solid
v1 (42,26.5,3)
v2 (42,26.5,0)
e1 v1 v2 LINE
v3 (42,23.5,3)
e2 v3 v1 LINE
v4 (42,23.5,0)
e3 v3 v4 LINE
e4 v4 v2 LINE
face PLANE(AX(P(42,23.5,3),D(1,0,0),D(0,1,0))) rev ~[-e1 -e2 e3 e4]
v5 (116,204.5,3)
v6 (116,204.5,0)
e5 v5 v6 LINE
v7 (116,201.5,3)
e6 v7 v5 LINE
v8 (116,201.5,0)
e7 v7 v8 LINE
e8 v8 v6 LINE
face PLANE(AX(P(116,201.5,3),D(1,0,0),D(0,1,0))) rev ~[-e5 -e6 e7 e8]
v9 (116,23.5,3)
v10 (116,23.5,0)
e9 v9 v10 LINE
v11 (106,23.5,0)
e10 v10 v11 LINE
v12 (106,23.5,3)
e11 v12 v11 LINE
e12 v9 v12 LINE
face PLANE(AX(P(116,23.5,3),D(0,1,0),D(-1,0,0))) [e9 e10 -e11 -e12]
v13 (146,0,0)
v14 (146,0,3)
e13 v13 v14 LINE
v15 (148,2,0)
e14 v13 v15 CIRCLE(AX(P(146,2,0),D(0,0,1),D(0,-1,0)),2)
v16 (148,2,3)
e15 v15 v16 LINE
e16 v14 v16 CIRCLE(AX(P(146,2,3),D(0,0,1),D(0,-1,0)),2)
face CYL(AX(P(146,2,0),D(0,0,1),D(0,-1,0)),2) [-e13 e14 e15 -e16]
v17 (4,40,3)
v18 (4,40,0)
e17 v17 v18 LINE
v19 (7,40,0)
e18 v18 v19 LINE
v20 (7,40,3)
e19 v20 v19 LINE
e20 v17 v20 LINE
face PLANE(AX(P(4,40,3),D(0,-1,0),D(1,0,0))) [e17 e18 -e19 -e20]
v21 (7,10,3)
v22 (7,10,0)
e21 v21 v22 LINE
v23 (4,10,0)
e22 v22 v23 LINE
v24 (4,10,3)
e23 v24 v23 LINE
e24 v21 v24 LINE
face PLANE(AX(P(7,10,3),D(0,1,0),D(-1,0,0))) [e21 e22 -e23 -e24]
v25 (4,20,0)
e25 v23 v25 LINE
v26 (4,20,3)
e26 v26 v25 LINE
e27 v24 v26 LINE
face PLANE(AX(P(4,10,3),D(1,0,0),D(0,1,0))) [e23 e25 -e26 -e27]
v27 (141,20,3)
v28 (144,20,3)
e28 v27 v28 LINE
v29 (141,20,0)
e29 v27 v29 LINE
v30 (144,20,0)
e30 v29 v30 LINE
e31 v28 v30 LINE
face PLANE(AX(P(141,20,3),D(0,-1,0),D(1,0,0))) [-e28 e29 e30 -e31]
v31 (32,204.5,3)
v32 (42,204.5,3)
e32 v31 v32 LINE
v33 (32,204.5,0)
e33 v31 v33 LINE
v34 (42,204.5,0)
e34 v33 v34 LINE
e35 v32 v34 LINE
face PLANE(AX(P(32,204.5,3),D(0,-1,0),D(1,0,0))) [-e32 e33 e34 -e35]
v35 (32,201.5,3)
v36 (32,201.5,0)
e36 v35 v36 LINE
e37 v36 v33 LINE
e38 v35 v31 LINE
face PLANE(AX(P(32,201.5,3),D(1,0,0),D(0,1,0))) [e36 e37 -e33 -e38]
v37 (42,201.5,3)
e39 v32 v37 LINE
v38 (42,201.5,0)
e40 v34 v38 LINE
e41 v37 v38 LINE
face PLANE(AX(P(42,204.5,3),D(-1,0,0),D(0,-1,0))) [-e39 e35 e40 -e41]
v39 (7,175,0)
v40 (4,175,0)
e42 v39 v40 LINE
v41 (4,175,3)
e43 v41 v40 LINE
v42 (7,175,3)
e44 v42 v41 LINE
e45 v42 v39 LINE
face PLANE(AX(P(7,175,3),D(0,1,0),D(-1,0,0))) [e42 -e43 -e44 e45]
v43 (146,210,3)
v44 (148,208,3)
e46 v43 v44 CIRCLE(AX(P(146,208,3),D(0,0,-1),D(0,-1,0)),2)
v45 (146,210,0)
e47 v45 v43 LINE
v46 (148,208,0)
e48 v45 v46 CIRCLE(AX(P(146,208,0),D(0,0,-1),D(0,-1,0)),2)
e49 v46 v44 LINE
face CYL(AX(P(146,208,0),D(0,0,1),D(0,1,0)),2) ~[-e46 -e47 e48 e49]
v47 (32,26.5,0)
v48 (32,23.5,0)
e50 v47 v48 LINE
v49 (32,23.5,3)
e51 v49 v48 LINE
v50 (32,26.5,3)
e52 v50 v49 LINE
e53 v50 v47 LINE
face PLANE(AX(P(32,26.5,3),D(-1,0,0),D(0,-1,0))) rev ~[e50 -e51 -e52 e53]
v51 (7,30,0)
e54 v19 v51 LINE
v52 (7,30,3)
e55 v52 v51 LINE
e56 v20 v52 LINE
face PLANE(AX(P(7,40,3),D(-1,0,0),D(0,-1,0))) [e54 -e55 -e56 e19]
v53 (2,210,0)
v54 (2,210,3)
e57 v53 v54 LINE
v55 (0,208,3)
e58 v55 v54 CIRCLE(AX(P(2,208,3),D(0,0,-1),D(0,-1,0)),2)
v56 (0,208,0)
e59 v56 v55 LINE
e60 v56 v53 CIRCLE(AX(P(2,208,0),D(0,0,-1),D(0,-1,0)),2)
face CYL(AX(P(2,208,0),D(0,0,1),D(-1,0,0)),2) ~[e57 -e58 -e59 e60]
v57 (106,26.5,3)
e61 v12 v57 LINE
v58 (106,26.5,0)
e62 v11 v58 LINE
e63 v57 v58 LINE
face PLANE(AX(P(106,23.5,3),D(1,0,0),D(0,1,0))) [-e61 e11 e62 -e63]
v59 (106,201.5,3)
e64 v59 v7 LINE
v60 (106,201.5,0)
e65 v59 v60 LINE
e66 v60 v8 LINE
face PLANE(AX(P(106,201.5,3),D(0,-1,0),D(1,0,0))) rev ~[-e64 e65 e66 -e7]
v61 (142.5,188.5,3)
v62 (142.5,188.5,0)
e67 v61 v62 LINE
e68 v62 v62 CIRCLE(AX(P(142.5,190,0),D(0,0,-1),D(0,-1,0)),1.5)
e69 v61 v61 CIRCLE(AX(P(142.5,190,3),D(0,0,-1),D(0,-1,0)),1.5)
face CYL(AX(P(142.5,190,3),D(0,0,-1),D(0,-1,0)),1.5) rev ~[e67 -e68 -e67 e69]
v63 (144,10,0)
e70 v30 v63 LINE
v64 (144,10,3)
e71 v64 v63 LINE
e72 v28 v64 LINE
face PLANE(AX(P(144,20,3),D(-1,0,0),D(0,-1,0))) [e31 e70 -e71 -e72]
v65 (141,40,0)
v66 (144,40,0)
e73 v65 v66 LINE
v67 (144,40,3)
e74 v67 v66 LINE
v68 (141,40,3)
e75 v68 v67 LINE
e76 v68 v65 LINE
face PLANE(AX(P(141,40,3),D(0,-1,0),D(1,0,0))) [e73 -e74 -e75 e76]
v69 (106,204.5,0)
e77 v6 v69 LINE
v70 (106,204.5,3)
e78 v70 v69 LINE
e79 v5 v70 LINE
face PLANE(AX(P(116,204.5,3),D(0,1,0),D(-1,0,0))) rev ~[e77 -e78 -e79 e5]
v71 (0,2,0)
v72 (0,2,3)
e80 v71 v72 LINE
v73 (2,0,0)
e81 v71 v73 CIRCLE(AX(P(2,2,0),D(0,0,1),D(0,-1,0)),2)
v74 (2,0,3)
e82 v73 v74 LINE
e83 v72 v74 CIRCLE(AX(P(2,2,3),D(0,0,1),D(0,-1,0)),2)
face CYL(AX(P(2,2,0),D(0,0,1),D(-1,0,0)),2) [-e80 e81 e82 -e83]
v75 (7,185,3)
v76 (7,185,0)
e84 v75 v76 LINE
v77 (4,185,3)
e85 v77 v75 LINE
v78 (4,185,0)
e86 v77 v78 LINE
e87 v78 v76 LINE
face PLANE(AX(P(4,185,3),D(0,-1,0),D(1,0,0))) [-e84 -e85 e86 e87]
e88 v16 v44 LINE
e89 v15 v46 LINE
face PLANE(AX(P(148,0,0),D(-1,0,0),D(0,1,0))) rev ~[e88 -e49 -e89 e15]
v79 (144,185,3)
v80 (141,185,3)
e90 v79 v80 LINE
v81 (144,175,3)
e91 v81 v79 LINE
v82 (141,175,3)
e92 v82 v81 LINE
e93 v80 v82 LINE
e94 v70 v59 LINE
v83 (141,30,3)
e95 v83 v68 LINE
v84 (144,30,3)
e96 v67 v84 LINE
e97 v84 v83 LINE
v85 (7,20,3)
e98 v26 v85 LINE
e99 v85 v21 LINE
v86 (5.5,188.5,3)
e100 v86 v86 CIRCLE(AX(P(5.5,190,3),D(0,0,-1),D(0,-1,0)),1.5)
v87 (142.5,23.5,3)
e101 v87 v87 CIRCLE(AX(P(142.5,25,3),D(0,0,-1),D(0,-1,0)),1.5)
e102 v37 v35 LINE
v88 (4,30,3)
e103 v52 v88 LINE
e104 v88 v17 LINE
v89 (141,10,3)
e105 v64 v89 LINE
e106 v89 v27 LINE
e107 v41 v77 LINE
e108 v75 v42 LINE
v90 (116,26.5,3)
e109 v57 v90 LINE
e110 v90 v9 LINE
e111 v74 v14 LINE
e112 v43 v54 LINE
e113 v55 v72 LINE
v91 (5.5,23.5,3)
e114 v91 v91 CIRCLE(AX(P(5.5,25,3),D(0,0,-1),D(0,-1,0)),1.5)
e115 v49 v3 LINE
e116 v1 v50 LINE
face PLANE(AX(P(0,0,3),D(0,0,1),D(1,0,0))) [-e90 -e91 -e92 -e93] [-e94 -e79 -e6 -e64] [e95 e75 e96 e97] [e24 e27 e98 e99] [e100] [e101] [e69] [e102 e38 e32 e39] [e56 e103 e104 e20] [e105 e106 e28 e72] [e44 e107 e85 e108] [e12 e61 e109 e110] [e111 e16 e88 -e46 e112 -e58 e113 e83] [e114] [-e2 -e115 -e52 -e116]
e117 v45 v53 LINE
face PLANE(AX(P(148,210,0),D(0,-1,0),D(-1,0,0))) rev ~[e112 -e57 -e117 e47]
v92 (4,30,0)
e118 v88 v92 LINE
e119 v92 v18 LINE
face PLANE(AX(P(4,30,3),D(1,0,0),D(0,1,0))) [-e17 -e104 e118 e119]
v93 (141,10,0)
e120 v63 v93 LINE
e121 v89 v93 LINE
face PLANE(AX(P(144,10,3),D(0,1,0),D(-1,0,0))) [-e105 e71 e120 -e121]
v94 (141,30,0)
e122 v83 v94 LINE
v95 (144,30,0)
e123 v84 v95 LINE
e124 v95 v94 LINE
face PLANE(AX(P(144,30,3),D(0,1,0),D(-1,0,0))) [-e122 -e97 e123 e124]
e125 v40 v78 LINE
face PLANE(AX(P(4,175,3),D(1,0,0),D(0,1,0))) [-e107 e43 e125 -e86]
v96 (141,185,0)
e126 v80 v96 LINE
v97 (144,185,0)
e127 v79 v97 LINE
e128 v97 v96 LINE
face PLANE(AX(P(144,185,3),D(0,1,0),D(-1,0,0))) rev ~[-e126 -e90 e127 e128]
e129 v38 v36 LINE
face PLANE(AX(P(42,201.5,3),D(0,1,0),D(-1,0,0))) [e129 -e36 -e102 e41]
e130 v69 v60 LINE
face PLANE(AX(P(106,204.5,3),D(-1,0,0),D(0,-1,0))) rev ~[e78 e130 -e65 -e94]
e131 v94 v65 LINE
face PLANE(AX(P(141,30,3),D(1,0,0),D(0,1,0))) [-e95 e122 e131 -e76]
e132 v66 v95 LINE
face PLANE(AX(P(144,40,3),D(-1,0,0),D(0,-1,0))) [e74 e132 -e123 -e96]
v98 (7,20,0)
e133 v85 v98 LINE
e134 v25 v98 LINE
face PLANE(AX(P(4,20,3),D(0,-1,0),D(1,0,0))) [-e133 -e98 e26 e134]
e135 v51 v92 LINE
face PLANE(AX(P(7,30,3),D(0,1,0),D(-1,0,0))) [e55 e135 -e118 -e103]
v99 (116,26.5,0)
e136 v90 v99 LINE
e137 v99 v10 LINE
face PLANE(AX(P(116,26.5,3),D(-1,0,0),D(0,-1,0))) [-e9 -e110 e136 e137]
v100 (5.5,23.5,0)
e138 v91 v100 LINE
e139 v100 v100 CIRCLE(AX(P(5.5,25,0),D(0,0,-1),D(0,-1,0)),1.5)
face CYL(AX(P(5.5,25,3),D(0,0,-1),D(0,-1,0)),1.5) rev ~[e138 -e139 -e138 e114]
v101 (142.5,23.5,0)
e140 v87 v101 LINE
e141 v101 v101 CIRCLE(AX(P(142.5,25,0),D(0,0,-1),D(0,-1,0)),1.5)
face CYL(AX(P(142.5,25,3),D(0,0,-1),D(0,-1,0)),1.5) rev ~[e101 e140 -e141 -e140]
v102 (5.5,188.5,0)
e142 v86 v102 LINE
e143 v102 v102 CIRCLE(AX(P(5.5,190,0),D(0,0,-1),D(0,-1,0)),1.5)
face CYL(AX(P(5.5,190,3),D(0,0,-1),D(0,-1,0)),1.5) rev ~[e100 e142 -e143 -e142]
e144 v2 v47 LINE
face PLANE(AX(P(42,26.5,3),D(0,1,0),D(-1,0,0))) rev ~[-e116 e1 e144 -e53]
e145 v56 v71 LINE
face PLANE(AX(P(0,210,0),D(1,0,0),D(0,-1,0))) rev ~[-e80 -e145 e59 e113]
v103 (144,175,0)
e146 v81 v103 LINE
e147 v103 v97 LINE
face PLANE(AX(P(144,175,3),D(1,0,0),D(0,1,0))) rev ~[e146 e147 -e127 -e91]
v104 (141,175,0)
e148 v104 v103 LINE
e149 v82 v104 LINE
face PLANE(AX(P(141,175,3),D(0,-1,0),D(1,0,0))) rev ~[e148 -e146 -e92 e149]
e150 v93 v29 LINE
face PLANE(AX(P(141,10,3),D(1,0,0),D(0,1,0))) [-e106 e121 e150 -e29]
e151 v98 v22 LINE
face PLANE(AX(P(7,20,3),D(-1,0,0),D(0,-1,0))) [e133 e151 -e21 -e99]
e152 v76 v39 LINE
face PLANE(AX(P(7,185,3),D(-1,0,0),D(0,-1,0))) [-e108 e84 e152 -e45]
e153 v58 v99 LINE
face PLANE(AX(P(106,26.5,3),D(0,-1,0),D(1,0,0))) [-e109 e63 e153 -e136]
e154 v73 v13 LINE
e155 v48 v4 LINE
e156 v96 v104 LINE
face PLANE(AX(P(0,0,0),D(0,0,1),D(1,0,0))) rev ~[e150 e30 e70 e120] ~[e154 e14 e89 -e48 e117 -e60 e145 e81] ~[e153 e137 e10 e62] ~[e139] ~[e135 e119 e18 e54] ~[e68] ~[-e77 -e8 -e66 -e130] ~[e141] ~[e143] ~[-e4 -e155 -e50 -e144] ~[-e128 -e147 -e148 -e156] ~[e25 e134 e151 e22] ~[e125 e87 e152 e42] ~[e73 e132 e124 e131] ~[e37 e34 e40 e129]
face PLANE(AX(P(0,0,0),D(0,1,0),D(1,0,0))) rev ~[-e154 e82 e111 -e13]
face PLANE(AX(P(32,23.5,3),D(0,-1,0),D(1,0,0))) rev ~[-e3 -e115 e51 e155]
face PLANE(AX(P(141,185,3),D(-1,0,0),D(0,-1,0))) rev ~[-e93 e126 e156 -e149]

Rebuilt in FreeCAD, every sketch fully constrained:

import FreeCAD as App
import Part
import Sketcher


def edges_at(feature, points):
    """Names of the edges that pass closest to the given points."""
    edges = feature.Shape.Edges
    near = lambda p: min(range(len(edges)), key=lambda i: edges[i].distToShape(Part.Vertex(*p))[0])
    return sorted({f"Edge{near(p) + 1}" for p in points})

doc = App.newDocument("Part")
params = doc.addObject("Spreadsheet::Sheet", "Params")
for row, (alias, value) in enumerate([
    ("sketch1_width", "148 mm"),
    ("sketch1_height", "210 mm"),
    ("pad1_length", "3 mm"),
    ("sketch2_width", "3 mm"),
    ("sketch2_height", "10 mm"),
    ("sketch3_diameter", "3 mm"),
    ("hole_diameter", "3 mm"),
    ("sketch4_width", "10 mm"),
    ("sketch4_height", "3 mm"),
    ("fillet_radius", "2 mm"),
], start=1):
    params.set(f"A{row}", alias)
    params.set(f"B{row}", "=" + value)
    params.setAlias(f"B{row}", alias)

body = doc.addObject("PartDesign::Body", "Body")

# Sketch on XY plane
sketch1 = doc.addObject("Sketcher::SketchObject", "Sketch")
body.addObject(sketch1)
sketch1.AttachmentSupport = (doc.XY_Plane, [""])
sketch1.MapMode = "FlatFace"
sketch1.addGeometry([
    Part.LineSegment(App.Vector(0, 210, 0), App.Vector(0, 0, 0)),
    Part.LineSegment(App.Vector(0, 0, 0), App.Vector(148, 0, 0)),
    Part.LineSegment(App.Vector(148, 0, 0), App.Vector(148, 210, 0)),
    Part.LineSegment(App.Vector(148, 210, 0), App.Vector(0, 210, 0)),
], False)
sketch1.addConstraint([
    Sketcher.Constraint("Coincident", 0, 2, 1, 1),
    Sketcher.Constraint("Coincident", 1, 2, 2, 1),
    Sketcher.Constraint("Coincident", 2, 2, 3, 1),
    Sketcher.Constraint("Coincident", 3, 2, 0, 1),
    Sketcher.Constraint("Vertical", 0),
    Sketcher.Constraint("Horizontal", 1),
    Sketcher.Constraint("Vertical", 2),
    Sketcher.Constraint("Horizontal", 3),
    Sketcher.Constraint("Coincident", 0, 2, -1, 1),
    Sketcher.Constraint("DistanceX", 1, 1, 1, 2, 148.0),
    Sketcher.Constraint("DistanceY", 0, 2, 0, 1, 210.0),
])
sketch1.setExpression("Constraints[9]", "Params.sketch1_width")
sketch1.setExpression("Constraints[10]", "Params.sketch1_height")
pad1 = doc.addObject("PartDesign::Pad", "Pad")
body.addObject(pad1)
pad1.Profile = sketch1
pad1.setExpression("Length", "Params.pad1_length")

# Sketch on XY plane
sketch2 = doc.addObject("Sketcher::SketchObject", "Sketch001")
body.addObject(sketch2)
sketch2.AttachmentSupport = (doc.XY_Plane, [""])
sketch2.MapMode = "FlatFace"
sketch2.AttachmentOffset = App.Placement(App.Vector(0, 0, 3), App.Rotation())
sketch2.addGeometry([
    Part.LineSegment(App.Vector(7, 185, 0), App.Vector(4, 185, 0)),  # 0
    Part.LineSegment(App.Vector(4, 185, 0), App.Vector(4, 175, 0)),  # 1
    Part.LineSegment(App.Vector(4, 175, 0), App.Vector(7, 175, 0)),  # 2
    Part.LineSegment(App.Vector(7, 175, 0), App.Vector(7, 185, 0)),  # 3
    Part.LineSegment(App.Vector(7, 40, 0), App.Vector(4, 40, 0)),  # 4
    Part.LineSegment(App.Vector(4, 40, 0), App.Vector(4, 30, 0)),  # 5
    Part.LineSegment(App.Vector(4, 30, 0), App.Vector(7, 30, 0)),  # 6
    Part.LineSegment(App.Vector(7, 30, 0), App.Vector(7, 40, 0)),  # 7
    Part.LineSegment(App.Vector(7, 20, 0), App.Vector(4, 20, 0)),  # 8
    Part.LineSegment(App.Vector(4, 20, 0), App.Vector(4, 10, 0)),  # 9
    Part.LineSegment(App.Vector(4, 10, 0), App.Vector(7, 10, 0)),  # 10
    Part.LineSegment(App.Vector(7, 10, 0), App.Vector(7, 20, 0)),  # 11
    Part.LineSegment(App.Vector(141, 185, 0), App.Vector(141, 175, 0)),  # 12
    Part.LineSegment(App.Vector(141, 175, 0), App.Vector(144, 175, 0)),  # 13
    Part.LineSegment(App.Vector(144, 175, 0), App.Vector(144, 185, 0)),  # 14
    Part.LineSegment(App.Vector(144, 185, 0), App.Vector(141, 185, 0)),  # 15
    Part.LineSegment(App.Vector(144, 40, 0), App.Vector(141, 40, 0)),  # 16
    Part.LineSegment(App.Vector(141, 40, 0), App.Vector(141, 30, 0)),  # 17
    Part.LineSegment(App.Vector(141, 30, 0), App.Vector(144, 30, 0)),  # 18
    Part.LineSegment(App.Vector(144, 30, 0), App.Vector(144, 40, 0)),  # 19
    Part.LineSegment(App.Vector(144, 20, 0), App.Vector(141, 20, 0)),  # 20
    Part.LineSegment(App.Vector(141, 20, 0), App.Vector(141, 10, 0)),  # 21
    Part.LineSegment(App.Vector(141, 10, 0), App.Vector(144, 10, 0)),  # 22
    Part.LineSegment(App.Vector(144, 10, 0), App.Vector(144, 20, 0)),  # 23
], False)
sketch2.addConstraint([
    Sketcher.Constraint("Coincident", 0, 2, 1, 1),
    Sketcher.Constraint("Coincident", 1, 2, 2, 1),
    Sketcher.Constraint("Coincident", 2, 2, 3, 1),
    Sketcher.Constraint("Coincident", 3, 2, 0, 1),
    Sketcher.Constraint("Coincident", 4, 2, 5, 1),
    Sketcher.Constraint("Coincident", 5, 2, 6, 1),
    Sketcher.Constraint("Coincident", 6, 2, 7, 1),
    Sketcher.Constraint("Coincident", 7, 2, 4, 1),
    Sketcher.Constraint("Coincident", 8, 2, 9, 1),
    Sketcher.Constraint("Coincident", 9, 2, 10, 1),
    Sketcher.Constraint("Coincident", 10, 2, 11, 1),
    Sketcher.Constraint("Coincident", 11, 2, 8, 1),
    Sketcher.Constraint("Coincident", 12, 2, 13, 1),
    Sketcher.Constraint("Coincident", 13, 2, 14, 1),
    Sketcher.Constraint("Coincident", 14, 2, 15, 1),
    Sketcher.Constraint("Coincident", 15, 2, 12, 1),
    Sketcher.Constraint("Coincident", 16, 2, 17, 1),
    Sketcher.Constraint("Coincident", 17, 2, 18, 1),
    Sketcher.Constraint("Coincident", 18, 2, 19, 1),
    Sketcher.Constraint("Coincident", 19, 2, 16, 1),
    Sketcher.Constraint("Coincident", 20, 2, 21, 1),
    Sketcher.Constraint("Coincident", 21, 2, 22, 1),
    Sketcher.Constraint("Coincident", 22, 2, 23, 1),
    Sketcher.Constraint("Coincident", 23, 2, 20, 1),
    Sketcher.Constraint("Horizontal", 0),
    Sketcher.Constraint("Vertical", 1),
    Sketcher.Constraint("Horizontal", 2),
    Sketcher.Constraint("Vertical", 3),
    Sketcher.Constraint("Horizontal", 4),
    Sketcher.Constraint("Vertical", 5),
    Sketcher.Constraint("Horizontal", 6),
    Sketcher.Constraint("Vertical", 7),
    Sketcher.Constraint("Horizontal", 8),
    Sketcher.Constraint("Vertical", 9),
    Sketcher.Constraint("Horizontal", 10),
    Sketcher.Constraint("Vertical", 11),
    Sketcher.Constraint("Vertical", 12),
    Sketcher.Constraint("Horizontal", 13),
    Sketcher.Constraint("Vertical", 14),
    Sketcher.Constraint("Horizontal", 15),
    Sketcher.Constraint("Horizontal", 16),
    Sketcher.Constraint("Vertical", 17),
    Sketcher.Constraint("Horizontal", 18),
    Sketcher.Constraint("Vertical", 19),
    Sketcher.Constraint("Horizontal", 20),
    Sketcher.Constraint("Vertical", 21),
    Sketcher.Constraint("Horizontal", 22),
    Sketcher.Constraint("Vertical", 23),
    Sketcher.Constraint("Horizontal", 2, 2, 12, 2),
    Sketcher.Constraint("Horizontal", 3, 2, 14, 2),
    Sketcher.Constraint("Horizontal", 7, 2, 16, 2),
    Sketcher.Constraint("Horizontal", 6, 2, 17, 2),
    Sketcher.Constraint("Horizontal", 11, 2, 20, 2),
    Sketcher.Constraint("Horizontal", 10, 2, 21, 2),
    Sketcher.Constraint("Vertical", 1, 2, 4, 2),
    Sketcher.Constraint("Vertical", 3, 2, 6, 2),
    Sketcher.Constraint("Vertical", 5, 2, 8, 2),
    Sketcher.Constraint("Vertical", 7, 2, 10, 2),
    Sketcher.Constraint("Vertical", 15, 2, 16, 2),
    Sketcher.Constraint("Vertical", 14, 2, 18, 2),
    Sketcher.Constraint("Vertical", 17, 2, 20, 2),
    Sketcher.Constraint("Vertical", 19, 2, 22, 2),
    Sketcher.Constraint("Equal", 10, 13),
    Sketcher.Constraint("Equal", 3, 5),
    Sketcher.Constraint("Equal", 7, 9),
    Sketcher.Constraint("DistanceX", 0, 2, 0, 1, 3.0),
    Sketcher.Constraint("DistanceY", 1, 2, 1, 1, 10.0),
    Sketcher.Constraint("DistanceX", -1, 1, 0, 2, 4.0),
    Sketcher.Constraint("DistanceY", -1, 1, 9, 2, 10.0),
    Sketcher.Constraint("DistanceY", 8, 2, 5, 2, 10.0),
    Sketcher.Constraint("DistanceY", -1, 1, 0, 2, 185.0),
    Sketcher.Constraint("DistanceX", -1, 1, 12, 2, 141.0),
])
sketch2.setExpression("Constraints[65]", "Params.sketch2_width")
sketch2.setExpression("Constraints[66]", "Params.sketch2_height")
pocket1 = doc.addObject("PartDesign::Pocket", "Pocket")
body.addObject(pocket1)
pocket1.Profile = sketch2
pocket1.Type = "ThroughAll"

# Sketch on XY plane
sketch3 = doc.addObject("Sketcher::SketchObject", "Sketch002")
body.addObject(sketch3)
sketch3.AttachmentSupport = (doc.XY_Plane, [""])
sketch3.MapMode = "FlatFace"
sketch3.AttachmentOffset = App.Placement(App.Vector(0, 0, 3), App.Rotation())
sketch3.addGeometry([
    Part.Circle(App.Vector(5.5, 190, 0), App.Vector(0, 0, 1), 1.5),
    Part.Circle(App.Vector(142.5, 190, 0), App.Vector(0, 0, 1), 1.5),
    Part.Circle(App.Vector(5.5, 25, 0), App.Vector(0, 0, 1), 1.5),
    Part.Circle(App.Vector(142.5, 25, 0), App.Vector(0, 0, 1), 1.5),
], False)
sketch3.addConstraint([
    Sketcher.Constraint("Equal", 0, 1),
    Sketcher.Constraint("Equal", 1, 2),
    Sketcher.Constraint("Equal", 2, 3),
    Sketcher.Constraint("Horizontal", 0, 3, 1, 3),
    Sketcher.Constraint("Horizontal", 2, 3, 3, 3),
    Sketcher.Constraint("Vertical", 0, 3, 2, 3),
    Sketcher.Constraint("Vertical", 1, 3, 3, 3),
    Sketcher.Constraint("Diameter", 0, 3.0),
    Sketcher.Constraint("DistanceY", -1, 1, 0, 3, 190.0),
    Sketcher.Constraint("DistanceY", -1, 1, 2, 3, 25.0),
    Sketcher.Constraint("DistanceX", 0, 3, 1, 3, 137.0),
    Sketcher.Constraint("DistanceX", -1, 1, 0, 3, 5.5),
])
sketch3.setExpression("Constraints[7]", "Params.sketch3_diameter")
doc.recompute()
hole = doc.addObject("PartDesign::Hole", "Hole")
body.addObject(hole)
hole.Profile = sketch3
hole.ThreadType = "None"
hole.setExpression("Diameter", "Params.hole_diameter")
hole.DepthType = "ThroughAll"

# Sketch on XY plane
sketch4 = doc.addObject("Sketcher::SketchObject", "Sketch003")
body.addObject(sketch4)
sketch4.AttachmentSupport = (doc.XY_Plane, [""])
sketch4.MapMode = "FlatFace"
sketch4.AttachmentOffset = App.Placement(App.Vector(0, 0, 3), App.Rotation())
sketch4.addGeometry([
    Part.LineSegment(App.Vector(42, 204.5, 0), App.Vector(32, 204.5, 0)),  # 0
    Part.LineSegment(App.Vector(32, 204.5, 0), App.Vector(32, 201.5, 0)),  # 1
    Part.LineSegment(App.Vector(32, 201.5, 0), App.Vector(42, 201.5, 0)),  # 2
    Part.LineSegment(App.Vector(42, 201.5, 0), App.Vector(42, 204.5, 0)),  # 3
    Part.LineSegment(App.Vector(106, 204.5, 0), App.Vector(106, 201.5, 0)),  # 4
    Part.LineSegment(App.Vector(106, 201.5, 0), App.Vector(116, 201.5, 0)),  # 5
    Part.LineSegment(App.Vector(116, 201.5, 0), App.Vector(116, 204.5, 0)),  # 6
    Part.LineSegment(App.Vector(116, 204.5, 0), App.Vector(106, 204.5, 0)),  # 7
    Part.LineSegment(App.Vector(32, 26.5, 0), App.Vector(32, 23.5, 0)),  # 8
    Part.LineSegment(App.Vector(32, 23.5, 0), App.Vector(42, 23.5, 0)),  # 9
    Part.LineSegment(App.Vector(42, 23.5, 0), App.Vector(42, 26.5, 0)),  # 10
    Part.LineSegment(App.Vector(42, 26.5, 0), App.Vector(32, 26.5, 0)),  # 11
    Part.LineSegment(App.Vector(116, 26.5, 0), App.Vector(106, 26.5, 0)),  # 12
    Part.LineSegment(App.Vector(106, 26.5, 0), App.Vector(106, 23.5, 0)),  # 13
    Part.LineSegment(App.Vector(106, 23.5, 0), App.Vector(116, 23.5, 0)),  # 14
    Part.LineSegment(App.Vector(116, 23.5, 0), App.Vector(116, 26.5, 0)),  # 15
], False)
sketch4.addConstraint([
    Sketcher.Constraint("Coincident", 0, 2, 1, 1),
    Sketcher.Constraint("Coincident", 1, 2, 2, 1),
    Sketcher.Constraint("Coincident", 2, 2, 3, 1),
    Sketcher.Constraint("Coincident", 3, 2, 0, 1),
    Sketcher.Constraint("Coincident", 4, 2, 5, 1),
    Sketcher.Constraint("Coincident", 5, 2, 6, 1),
    Sketcher.Constraint("Coincident", 6, 2, 7, 1),
    Sketcher.Constraint("Coincident", 7, 2, 4, 1),
    Sketcher.Constraint("Coincident", 8, 2, 9, 1),
    Sketcher.Constraint("Coincident", 9, 2, 10, 1),
    Sketcher.Constraint("Coincident", 10, 2, 11, 1),
    Sketcher.Constraint("Coincident", 11, 2, 8, 1),
    Sketcher.Constraint("Coincident", 12, 2, 13, 1),
    Sketcher.Constraint("Coincident", 13, 2, 14, 1),
    Sketcher.Constraint("Coincident", 14, 2, 15, 1),
    Sketcher.Constraint("Coincident", 15, 2, 12, 1),
    Sketcher.Constraint("Horizontal", 0),
    Sketcher.Constraint("Vertical", 1),
    Sketcher.Constraint("Horizontal", 2),
    Sketcher.Constraint("Vertical", 3),
    Sketcher.Constraint("Vertical", 4),
    Sketcher.Constraint("Horizontal", 5),
    Sketcher.Constraint("Vertical", 6),
    Sketcher.Constraint("Horizontal", 7),
    Sketcher.Constraint("Vertical", 8),
    Sketcher.Constraint("Horizontal", 9),
    Sketcher.Constraint("Vertical", 10),
    Sketcher.Constraint("Horizontal", 11),
    Sketcher.Constraint("Horizontal", 12),
    Sketcher.Constraint("Vertical", 13),
    Sketcher.Constraint("Horizontal", 14),
    Sketcher.Constraint("Vertical", 15),
    Sketcher.Constraint("Horizontal", 2, 2, 4, 2),
    Sketcher.Constraint("Horizontal", 3, 2, 6, 2),
    Sketcher.Constraint("Horizontal", 11, 2, 12, 2),
    Sketcher.Constraint("Horizontal", 9, 2, 13, 2),
    Sketcher.Constraint("Vertical", 1, 2, 8, 2),
    Sketcher.Constraint("Vertical", 3, 2, 9, 2),
    Sketcher.Constraint("Vertical", 7, 2, 12, 2),
    Sketcher.Constraint("Vertical", 6, 2, 14, 2),
    Sketcher.Constraint("Equal", 2, 5),
    Sketcher.Constraint("Equal", 6, 8),
    Sketcher.Constraint("DistanceX", 0, 2, 0, 1, 10.0),
    Sketcher.Constraint("DistanceY", 1, 2, 1, 1, 3.0),
    Sketcher.Constraint("DistanceX", -1, 1, 0, 2, 32.0),
    Sketcher.Constraint("DistanceY", -1, 1, 8, 2, 23.5),
    Sketcher.Constraint("DistanceX", -1, 1, 4, 2, 106.0),
    Sketcher.Constraint("DistanceY", 8, 2, 1, 2, 178.0),
])
sketch4.setExpression("Constraints[42]", "Params.sketch4_width")
sketch4.setExpression("Constraints[43]", "Params.sketch4_height")
pocket2 = doc.addObject("PartDesign::Pocket", "Pocket001")
body.addObject(pocket2)
pocket2.Profile = sketch4
pocket2.Type = "ThroughAll"
doc.recompute()

fillet = doc.addObject("PartDesign::Fillet", "Fillet")
body.addObject(fillet)
fillet.Base = (pocket2, edges_at(pocket2, [
    (0, 0, 1.5),
    (148, 0, 1.5),
    (0, 210, 1.5),
    (148, 210, 1.5),
]))
fillet.setExpression("Radius", "Params.fillet_radius")

doc.recompute()
